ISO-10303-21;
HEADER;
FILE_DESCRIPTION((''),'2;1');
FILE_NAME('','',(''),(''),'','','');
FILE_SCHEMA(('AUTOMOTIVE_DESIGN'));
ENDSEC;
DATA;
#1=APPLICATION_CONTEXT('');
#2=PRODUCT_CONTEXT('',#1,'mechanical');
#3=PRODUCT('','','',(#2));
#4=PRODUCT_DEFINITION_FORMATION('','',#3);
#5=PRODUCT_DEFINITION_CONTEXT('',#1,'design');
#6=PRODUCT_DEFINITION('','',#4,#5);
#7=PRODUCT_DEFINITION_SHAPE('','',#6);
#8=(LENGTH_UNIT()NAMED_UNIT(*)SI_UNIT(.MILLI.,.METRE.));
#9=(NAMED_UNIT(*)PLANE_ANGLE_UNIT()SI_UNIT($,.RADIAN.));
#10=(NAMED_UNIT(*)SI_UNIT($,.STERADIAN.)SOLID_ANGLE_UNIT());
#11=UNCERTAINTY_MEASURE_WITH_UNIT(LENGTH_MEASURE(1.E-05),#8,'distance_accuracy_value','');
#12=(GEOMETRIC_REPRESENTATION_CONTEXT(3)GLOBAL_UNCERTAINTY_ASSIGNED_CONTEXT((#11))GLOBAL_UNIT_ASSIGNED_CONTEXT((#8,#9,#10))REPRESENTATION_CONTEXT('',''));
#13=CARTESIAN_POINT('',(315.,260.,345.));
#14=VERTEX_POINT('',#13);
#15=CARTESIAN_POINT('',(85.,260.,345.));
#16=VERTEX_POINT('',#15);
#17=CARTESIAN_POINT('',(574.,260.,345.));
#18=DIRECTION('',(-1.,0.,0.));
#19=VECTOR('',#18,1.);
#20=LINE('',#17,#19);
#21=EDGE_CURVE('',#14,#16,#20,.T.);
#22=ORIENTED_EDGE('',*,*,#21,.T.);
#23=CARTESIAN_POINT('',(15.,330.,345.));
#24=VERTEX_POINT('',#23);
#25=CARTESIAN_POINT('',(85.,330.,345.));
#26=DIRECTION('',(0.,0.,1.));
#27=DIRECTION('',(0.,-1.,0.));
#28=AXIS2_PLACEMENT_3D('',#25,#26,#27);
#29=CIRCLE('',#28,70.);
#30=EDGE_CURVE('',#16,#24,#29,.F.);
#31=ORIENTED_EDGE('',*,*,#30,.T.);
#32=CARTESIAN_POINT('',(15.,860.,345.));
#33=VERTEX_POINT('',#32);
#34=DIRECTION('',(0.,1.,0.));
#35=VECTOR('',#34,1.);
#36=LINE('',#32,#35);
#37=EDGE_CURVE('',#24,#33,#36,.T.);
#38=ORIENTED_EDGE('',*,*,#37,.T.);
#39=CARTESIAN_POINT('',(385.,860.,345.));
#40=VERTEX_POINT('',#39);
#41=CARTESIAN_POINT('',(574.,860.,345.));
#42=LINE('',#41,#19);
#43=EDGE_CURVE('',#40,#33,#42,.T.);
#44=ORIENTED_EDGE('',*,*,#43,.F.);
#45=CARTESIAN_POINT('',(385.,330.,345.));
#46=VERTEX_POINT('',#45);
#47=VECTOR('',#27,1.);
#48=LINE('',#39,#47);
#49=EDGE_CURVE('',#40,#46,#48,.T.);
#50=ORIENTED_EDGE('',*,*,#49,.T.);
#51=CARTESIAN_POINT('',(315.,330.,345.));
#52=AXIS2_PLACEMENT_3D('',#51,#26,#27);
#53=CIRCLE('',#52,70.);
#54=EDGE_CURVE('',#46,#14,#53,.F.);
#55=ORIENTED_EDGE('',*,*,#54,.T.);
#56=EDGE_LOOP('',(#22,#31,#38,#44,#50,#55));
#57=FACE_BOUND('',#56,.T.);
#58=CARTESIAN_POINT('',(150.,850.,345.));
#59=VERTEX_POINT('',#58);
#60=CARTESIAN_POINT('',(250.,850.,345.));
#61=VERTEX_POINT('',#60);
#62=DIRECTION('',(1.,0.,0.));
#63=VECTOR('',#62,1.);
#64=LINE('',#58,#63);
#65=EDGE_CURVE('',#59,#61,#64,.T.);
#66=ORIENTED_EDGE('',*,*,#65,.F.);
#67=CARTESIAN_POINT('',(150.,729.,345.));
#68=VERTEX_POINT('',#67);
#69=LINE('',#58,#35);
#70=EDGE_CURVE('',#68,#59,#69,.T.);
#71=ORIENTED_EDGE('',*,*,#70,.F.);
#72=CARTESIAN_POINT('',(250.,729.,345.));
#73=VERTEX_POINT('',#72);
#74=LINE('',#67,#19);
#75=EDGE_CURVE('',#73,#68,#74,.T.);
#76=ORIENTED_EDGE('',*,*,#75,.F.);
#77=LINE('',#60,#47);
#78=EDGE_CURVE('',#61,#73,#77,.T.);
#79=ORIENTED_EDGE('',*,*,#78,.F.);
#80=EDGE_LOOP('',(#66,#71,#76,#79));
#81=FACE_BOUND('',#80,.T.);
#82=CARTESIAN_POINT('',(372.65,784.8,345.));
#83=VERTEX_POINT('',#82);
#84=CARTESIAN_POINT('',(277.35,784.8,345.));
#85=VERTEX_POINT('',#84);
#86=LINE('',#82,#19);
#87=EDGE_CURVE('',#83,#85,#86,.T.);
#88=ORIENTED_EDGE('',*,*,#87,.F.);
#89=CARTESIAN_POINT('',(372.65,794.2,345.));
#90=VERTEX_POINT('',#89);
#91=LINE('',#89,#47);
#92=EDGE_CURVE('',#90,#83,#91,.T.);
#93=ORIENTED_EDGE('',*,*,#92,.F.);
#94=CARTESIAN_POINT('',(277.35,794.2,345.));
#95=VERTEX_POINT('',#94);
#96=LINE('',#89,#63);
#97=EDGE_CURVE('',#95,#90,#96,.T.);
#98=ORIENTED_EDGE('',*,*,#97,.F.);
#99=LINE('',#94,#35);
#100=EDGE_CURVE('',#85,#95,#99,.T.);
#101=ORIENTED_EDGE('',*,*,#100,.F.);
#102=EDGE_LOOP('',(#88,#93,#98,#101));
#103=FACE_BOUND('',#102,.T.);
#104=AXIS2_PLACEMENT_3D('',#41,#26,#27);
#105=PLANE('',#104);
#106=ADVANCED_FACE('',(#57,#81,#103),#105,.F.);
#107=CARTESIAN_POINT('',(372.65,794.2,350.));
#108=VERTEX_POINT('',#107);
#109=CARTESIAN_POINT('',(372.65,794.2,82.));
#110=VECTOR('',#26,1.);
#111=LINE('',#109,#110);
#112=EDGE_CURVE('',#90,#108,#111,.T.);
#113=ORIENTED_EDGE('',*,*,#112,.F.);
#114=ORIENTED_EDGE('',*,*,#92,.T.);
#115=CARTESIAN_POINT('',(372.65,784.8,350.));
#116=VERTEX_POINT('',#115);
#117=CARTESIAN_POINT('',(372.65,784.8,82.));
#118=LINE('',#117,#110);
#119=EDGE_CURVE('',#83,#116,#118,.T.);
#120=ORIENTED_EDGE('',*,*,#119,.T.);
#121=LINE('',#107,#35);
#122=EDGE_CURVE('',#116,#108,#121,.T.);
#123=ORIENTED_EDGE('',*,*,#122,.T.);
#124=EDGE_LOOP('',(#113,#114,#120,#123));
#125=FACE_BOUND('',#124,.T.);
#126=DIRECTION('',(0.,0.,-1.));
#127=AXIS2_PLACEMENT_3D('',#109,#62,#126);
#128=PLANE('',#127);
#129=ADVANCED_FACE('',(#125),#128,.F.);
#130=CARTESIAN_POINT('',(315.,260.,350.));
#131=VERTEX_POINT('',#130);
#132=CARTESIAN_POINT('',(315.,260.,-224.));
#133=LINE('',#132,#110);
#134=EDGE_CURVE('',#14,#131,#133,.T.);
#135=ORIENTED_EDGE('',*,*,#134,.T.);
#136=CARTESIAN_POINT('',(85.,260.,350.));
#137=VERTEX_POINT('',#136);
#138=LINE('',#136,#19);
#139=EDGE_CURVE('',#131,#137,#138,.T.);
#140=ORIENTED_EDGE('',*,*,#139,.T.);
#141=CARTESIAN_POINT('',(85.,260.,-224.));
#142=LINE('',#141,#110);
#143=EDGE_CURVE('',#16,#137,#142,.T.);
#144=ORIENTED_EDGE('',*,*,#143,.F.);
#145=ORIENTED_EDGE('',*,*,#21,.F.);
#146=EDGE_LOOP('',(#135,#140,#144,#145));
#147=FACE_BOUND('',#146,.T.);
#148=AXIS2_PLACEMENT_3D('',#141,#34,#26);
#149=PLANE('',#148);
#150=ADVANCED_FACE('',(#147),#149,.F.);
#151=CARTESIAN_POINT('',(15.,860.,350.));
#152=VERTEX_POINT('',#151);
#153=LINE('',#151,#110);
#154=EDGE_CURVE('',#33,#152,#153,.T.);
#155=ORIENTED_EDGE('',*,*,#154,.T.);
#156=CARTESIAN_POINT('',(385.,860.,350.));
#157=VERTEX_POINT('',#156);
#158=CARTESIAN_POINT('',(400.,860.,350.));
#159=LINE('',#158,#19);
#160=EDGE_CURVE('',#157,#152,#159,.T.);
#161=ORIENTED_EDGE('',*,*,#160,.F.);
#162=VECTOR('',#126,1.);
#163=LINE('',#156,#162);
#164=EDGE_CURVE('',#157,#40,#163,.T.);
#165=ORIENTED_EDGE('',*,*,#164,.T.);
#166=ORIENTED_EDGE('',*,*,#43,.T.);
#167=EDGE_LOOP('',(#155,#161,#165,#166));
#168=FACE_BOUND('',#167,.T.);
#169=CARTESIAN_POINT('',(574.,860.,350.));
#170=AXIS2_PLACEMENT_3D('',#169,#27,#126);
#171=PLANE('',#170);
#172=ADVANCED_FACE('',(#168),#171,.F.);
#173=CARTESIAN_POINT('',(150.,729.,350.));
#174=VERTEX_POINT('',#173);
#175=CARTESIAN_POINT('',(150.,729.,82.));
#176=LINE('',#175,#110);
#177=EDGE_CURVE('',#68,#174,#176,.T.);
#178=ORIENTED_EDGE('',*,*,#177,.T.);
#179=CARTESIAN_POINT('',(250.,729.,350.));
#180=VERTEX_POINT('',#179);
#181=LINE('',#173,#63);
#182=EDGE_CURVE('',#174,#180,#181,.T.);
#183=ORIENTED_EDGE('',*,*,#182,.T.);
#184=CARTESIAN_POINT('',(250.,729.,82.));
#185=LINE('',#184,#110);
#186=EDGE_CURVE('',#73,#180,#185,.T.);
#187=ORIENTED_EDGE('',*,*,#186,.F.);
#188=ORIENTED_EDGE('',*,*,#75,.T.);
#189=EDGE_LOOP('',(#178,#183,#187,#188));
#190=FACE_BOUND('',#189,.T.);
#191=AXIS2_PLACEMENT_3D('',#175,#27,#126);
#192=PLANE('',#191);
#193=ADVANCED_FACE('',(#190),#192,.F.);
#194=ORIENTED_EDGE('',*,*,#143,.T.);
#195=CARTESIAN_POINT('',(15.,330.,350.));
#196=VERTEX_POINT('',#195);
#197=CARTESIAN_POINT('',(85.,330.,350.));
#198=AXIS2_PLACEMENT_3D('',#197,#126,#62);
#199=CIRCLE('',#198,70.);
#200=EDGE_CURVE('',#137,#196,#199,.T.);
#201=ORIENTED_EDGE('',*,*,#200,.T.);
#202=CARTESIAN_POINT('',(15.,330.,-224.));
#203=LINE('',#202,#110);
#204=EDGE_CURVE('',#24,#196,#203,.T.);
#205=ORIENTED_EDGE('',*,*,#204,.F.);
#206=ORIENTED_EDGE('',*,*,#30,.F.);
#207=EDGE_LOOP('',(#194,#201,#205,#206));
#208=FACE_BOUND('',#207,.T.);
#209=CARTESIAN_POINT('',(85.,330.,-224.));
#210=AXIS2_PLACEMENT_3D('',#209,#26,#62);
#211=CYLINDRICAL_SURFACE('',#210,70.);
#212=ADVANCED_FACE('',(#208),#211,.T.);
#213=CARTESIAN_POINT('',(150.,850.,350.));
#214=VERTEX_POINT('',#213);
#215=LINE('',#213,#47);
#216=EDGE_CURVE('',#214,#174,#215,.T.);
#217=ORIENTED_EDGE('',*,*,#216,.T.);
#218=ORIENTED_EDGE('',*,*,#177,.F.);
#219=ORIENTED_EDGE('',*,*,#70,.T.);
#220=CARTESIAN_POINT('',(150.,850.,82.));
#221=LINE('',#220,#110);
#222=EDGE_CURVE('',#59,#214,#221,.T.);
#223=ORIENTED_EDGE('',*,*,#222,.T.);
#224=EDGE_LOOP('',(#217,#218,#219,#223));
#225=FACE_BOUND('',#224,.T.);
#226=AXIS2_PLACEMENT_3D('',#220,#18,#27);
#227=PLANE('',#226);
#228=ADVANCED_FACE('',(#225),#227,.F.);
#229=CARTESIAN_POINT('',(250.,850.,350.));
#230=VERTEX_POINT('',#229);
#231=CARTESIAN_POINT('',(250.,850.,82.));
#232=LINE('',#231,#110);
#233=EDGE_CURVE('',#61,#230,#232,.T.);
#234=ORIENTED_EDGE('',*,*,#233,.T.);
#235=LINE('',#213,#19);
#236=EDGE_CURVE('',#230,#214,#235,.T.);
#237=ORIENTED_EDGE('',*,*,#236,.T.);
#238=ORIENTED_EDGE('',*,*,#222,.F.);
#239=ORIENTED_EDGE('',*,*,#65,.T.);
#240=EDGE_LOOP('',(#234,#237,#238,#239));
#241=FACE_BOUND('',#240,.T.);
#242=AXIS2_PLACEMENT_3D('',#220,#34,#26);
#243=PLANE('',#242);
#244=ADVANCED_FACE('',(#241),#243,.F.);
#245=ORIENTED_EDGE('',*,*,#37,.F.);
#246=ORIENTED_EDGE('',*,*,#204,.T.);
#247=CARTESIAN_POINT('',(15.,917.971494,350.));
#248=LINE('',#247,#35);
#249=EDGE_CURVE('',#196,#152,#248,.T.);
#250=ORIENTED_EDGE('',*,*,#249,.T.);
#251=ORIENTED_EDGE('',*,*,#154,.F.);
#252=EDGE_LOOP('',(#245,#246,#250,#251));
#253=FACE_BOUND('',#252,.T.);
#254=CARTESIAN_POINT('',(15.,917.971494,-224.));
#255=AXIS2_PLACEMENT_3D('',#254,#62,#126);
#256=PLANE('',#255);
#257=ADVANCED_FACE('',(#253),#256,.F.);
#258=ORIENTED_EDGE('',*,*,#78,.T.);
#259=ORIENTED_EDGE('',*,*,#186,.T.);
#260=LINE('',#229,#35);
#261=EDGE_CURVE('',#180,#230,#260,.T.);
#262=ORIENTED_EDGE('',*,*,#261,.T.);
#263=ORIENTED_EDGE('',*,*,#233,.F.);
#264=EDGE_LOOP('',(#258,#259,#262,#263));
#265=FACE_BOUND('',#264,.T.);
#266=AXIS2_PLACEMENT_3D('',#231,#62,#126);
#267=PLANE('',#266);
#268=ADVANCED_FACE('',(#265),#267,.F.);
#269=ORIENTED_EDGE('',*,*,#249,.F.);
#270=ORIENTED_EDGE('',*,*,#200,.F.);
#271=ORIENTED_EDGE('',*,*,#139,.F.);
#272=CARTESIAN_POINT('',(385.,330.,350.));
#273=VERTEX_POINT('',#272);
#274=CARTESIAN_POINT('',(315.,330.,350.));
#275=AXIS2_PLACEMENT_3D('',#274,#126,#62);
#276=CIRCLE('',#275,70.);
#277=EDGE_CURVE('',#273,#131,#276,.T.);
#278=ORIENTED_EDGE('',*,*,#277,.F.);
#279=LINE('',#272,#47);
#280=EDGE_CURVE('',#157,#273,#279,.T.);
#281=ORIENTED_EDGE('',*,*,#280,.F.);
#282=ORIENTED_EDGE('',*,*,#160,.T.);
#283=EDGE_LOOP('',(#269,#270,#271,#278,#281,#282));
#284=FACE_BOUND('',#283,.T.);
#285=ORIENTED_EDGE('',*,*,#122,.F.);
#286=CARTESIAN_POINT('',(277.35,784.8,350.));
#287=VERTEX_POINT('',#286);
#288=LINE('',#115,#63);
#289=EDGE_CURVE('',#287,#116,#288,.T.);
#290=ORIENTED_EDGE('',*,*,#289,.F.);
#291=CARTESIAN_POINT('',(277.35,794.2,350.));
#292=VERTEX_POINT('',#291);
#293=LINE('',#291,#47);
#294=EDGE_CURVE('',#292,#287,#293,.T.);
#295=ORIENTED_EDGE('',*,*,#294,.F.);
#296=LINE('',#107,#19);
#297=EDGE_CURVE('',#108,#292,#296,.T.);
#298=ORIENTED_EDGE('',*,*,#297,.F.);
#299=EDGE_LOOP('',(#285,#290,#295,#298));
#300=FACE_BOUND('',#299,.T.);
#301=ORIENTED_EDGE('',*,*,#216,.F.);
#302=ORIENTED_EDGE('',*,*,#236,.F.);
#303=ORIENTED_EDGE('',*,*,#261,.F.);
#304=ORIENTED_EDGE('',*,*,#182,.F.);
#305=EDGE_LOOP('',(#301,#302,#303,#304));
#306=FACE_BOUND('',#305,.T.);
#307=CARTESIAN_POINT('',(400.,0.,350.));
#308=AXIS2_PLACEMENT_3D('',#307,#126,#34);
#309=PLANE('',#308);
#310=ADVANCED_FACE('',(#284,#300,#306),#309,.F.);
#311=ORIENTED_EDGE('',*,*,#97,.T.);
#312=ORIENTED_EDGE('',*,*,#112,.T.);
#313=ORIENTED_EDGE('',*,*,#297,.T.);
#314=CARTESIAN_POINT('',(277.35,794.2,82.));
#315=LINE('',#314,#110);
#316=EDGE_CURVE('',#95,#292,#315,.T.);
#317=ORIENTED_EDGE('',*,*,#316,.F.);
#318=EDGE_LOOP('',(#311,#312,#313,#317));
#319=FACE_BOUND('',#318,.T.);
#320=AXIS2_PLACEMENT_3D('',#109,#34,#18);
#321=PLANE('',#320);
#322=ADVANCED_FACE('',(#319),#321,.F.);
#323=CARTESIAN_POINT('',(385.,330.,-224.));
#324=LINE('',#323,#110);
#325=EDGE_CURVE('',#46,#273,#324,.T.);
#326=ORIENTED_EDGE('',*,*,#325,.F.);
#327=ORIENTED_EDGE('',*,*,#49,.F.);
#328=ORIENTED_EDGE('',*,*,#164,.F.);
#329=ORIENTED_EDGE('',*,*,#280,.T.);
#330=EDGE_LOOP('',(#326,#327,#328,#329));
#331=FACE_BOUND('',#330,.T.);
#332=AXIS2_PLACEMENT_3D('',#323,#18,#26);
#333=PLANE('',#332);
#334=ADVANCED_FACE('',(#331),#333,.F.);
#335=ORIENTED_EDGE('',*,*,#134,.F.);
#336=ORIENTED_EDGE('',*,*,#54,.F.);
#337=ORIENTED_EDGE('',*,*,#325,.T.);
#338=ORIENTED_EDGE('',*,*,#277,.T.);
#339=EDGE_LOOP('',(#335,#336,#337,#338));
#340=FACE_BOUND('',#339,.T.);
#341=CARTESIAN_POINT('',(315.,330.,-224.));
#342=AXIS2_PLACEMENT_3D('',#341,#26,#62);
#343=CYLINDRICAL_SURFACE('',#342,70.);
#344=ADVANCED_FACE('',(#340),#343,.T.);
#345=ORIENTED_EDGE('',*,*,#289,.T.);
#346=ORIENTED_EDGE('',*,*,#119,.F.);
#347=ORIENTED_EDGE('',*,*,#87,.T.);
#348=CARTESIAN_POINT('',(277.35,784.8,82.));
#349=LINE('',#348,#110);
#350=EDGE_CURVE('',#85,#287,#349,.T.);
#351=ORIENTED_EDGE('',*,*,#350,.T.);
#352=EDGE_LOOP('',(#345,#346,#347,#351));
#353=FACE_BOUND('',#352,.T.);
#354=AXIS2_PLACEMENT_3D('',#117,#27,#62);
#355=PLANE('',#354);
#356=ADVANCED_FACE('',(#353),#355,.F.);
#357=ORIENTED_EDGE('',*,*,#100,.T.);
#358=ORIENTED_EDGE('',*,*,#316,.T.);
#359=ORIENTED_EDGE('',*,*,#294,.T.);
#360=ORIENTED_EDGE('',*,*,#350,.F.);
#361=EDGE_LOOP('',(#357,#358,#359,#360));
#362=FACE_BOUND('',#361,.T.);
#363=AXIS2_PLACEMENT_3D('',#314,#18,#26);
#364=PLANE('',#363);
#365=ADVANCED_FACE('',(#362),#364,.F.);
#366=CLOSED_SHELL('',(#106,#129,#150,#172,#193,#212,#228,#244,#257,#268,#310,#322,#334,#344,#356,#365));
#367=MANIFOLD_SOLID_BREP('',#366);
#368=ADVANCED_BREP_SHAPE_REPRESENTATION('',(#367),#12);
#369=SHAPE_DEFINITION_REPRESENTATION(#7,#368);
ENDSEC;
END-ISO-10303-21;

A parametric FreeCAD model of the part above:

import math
import FreeCAD as App
import Part
import Sketcher
Q = App.Units.Quantity


def add_polygon(sketch, points):
    """Adds a closed chain of lines whose ends are joined by coincident constraints."""
    first, n = sketch.GeometryCount, len(points)
    for a, b in zip(points, points[1:] + points[:1]):
        sketch.addGeometry(Part.LineSegment(App.Vector(*a, 0), App.Vector(*b, 0)), False)
    for i in range(n):
        sketch.addConstraint(Sketcher.Constraint("Coincident", first + i, 2, first + (i + 1) % n, 1))

doc = App.newDocument("Part")
body = doc.addObject("PartDesign::Body", "Body")

# Sketch on YZ plane
sketch1 = doc.addObject("Sketcher::SketchObject", "Sketch")
body.addObject(sketch1)
sketch1.AttachmentSupport = (doc.YZ_Plane, [""])
sketch1.MapMode = "FlatFace"
sketch1.addGeometry([
    Part.LineSegment(App.Vector(0, 350, 0), App.Vector(0, 0, 0)),  # 0
    Part.LineSegment(App.Vector(0, 0, 0), App.Vector(900, 0, 0)),  # 1
    Part.ArcOfCircle(Part.Circle(App.Vector(900, 160.712283, 0), App.Vector(0, 0, 1), 160.712283), math.radians(-90), math.radians(-0.792691)),  # 2
    Part.LineSegment(App.Vector(1060.696902, 158.488889, 0), App.Vector(900, 158.488889, 0)),  # 3
    Part.LineSegment(App.Vector(900, 158.488889, 0), App.Vector(900, 310, 0)),  # 4
    Part.ArcOfCircle(Part.Circle(App.Vector(860, 310, 0), App.Vector(0, 0, 1), 40), math.radians(0), math.radians(90)),  # 5
    Part.LineSegment(App.Vector(860, 350, 0), App.Vector(0, 350, 0)),  # 6
], False)
sketch1.addConstraint([
    Sketcher.Constraint("Coincident", 0, 2, 1, 1),
    Sketcher.Constraint("Tangent", 1, 2, 2, 1),
    Sketcher.Constraint("Coincident", 2, 2, 3, 1),
    Sketcher.Constraint("Coincident", 3, 2, 4, 1),
    Sketcher.Constraint("Tangent", 4, 2, 5, 1),
    Sketcher.Constraint("Tangent", 5, 2, 6, 1),
    Sketcher.Constraint("Coincident", 6, 2, 0, 1),
    Sketcher.Constraint("Vertical", 0),
    Sketcher.Constraint("Horizontal", 1),
    Sketcher.Constraint("Horizontal", 3),
    Sketcher.Constraint("Vertical", 4),
    Sketcher.Constraint("Horizontal", 6),
    Sketcher.Constraint("Coincident", 0, 2, -1, 1),
    Sketcher.Constraint("Vertical", 1, 2, 3, 2),
    Sketcher.Constraint("Radius", 5, Q("40 mm")),
    Sketcher.Constraint("DistanceX", 1, 1, 1, 2, Q("900 mm")),
    Sketcher.Constraint("DistanceY", 0, 2, 0, 1, Q("350 mm")),
    Sketcher.Constraint("Radius", 2, Q("160.712283 mm")),
    Sketcher.Constraint("DistanceY", 4, 1, 4, 2, Q("151.511111 mm")),
])
pad1 = doc.addObject("PartDesign::Pad", "Pad")
body.addObject(pad1)
pad1.Profile = sketch1
pad1.Length = 400

# Sketch on XY plane
sketch2 = doc.addObject("Sketcher::SketchObject", "Sketch001")
body.addObject(sketch2)
sketch2.AttachmentSupport = (doc.XY_Plane, [""])
sketch2.MapMode = "FlatFace"
sketch2.AttachmentOffset = App.Placement(App.Vector(0, 0, 350), App.Rotation())
add_polygon(sketch2, [(150, 850), (150, 729), (250, 729), (250, 850)])  # lines 0-3
add_polygon(sketch2, [(277.35, 794.2), (277.35, 784.8), (372.65, 784.8), (372.65, 794.2)])  # lines 4-7
sketch2.addConstraint([
    Sketcher.Constraint("Vertical", 0),
    Sketcher.Constraint("Horizontal", 1),
    Sketcher.Constraint("Vertical", 2),
    Sketcher.Constraint("Horizontal", 3),
    Sketcher.Constraint("Vertical", 4),
    Sketcher.Constraint("Horizontal", 5),
    Sketcher.Constraint("Vertical", 6),
    Sketcher.Constraint("Horizontal", 7),
    Sketcher.Constraint("DistanceX", 1, 1, 1, 2, Q("100 mm")),
    Sketcher.Constraint("DistanceY", 0, 2, 0, 1, Q("121 mm")),
    Sketcher.Constraint("DistanceX", 5, 1, 5, 2, Q("95.3 mm")),
    Sketcher.Constraint("DistanceY", 4, 2, 4, 1, Q("9.4 mm")),
    Sketcher.Constraint("DistanceX", -1, 1, 0, 2, Q("150 mm")),
    Sketcher.Constraint("DistanceY", -1, 1, 0, 2, Q("729 mm")),
    Sketcher.Constraint("DistanceY", -1, 1, 4, 2, Q("784.8 mm")),
    Sketcher.Constraint("DistanceX", -1, 1, 4, 2, Q("277.35 mm")),
])
pocket1 = doc.addObject("PartDesign::Pocket", "Pocket")
body.addObject(pocket1)
pocket1.Profile = sketch2
pocket1.Length = 268

# Sketch on YZ plane
sketch3 = doc.addObject("Sketcher::SketchObject", "Sketch002")
body.addObject(sketch3)
sketch3.AttachmentSupport = (doc.YZ_Plane, [""])
sketch3.MapMode = "FlatFace"
add_polygon(sketch3, [(860, 345), (860, 350), (1431.247055, 878.315398), (1729.323155, -155.38291), (0, -654.048621), (-140.268206, 345)])  # lines 0-5
sketch3.addConstraint([
    Sketcher.Constraint("Vertical", 0),
    Sketcher.Constraint("Horizontal", 5),
    Sketcher.Constraint("PointOnObject", 3, 2, -2),
    Sketcher.Constraint("Perpendicular", 2, 3),
    Sketcher.Constraint("DistanceY", 0, 1, 0, 2, Q("5 mm")),
    Sketcher.Constraint("DistanceX", -1, 1, 0, 2, Q("860 mm")),
    Sketcher.Constraint("DistanceY", -1, 1, 0, 2, Q("350 mm")),
    Sketcher.Constraint("DistanceX", 1, 2, 2, 2, Q("298.0761 mm")),
    Sketcher.Constraint("Distance", 1, Q("778.10048 mm")),
    Sketcher.Constraint("Distance", 2, Q("1075.816691 mm")),
    Sketcher.Constraint("Distance", 4, Q("1008.847519 mm")),
    Sketcher.Constraint("DistanceX", 5, 1, 5, 2, Q("1000.268206 mm")),
])
pocket2 = doc.addObject("PartDesign::Pocket", "Pocket001")
body.addObject(pocket2)
pocket2.Profile = sketch3
pocket2.Length = 574
pocket2.Reversed = True

# Sketch on XY plane
sketch4 = doc.addObject("Sketcher::SketchObject", "Sketch003")
body.addObject(sketch4)
sketch4.AttachmentSupport = (doc.XY_Plane, [""])
sketch4.MapMode = "FlatFace"
sketch4.AttachmentOffset = App.Placement(App.Vector(0, 0, 350), App.Rotation())
sketch4.addGeometry([
    Part.LineSegment(App.Vector(15, 330, 0), App.Vector(15, 917.971494, 0)),  # 0
    Part.LineSegment(App.Vector(15, 917.971494, 0), App.Vector(-601.648804, 753.812427, 0)),  # 1
    Part.LineSegment(App.Vector(-601.648804, 753.812427, 0), App.Vector(110.907603, -163.88624, 0)),  # 2
    Part.LineSegment(App.Vector(110.907603, -163.88624, 0), App.Vector(899.548672, -163.88624, 0)),  # 3
    Part.LineSegment(App.Vector(899.548672, -163.88624, 0), App.Vector(580.540592, 679.226511, 0)),  # 4
    Part.LineSegment(App.Vector(580.540592, 679.226511, 0), App.Vector(385, 917.971494, 0)),  # 5
    Part.LineSegment(App.Vector(385, 917.971494, 0), App.Vector(385, 330, 0)),  # 6
    Part.ArcOfCircle(Part.Circle(App.Vector(315, 330, 0), App.Vector(0, 0, 1), 70), math.radians(-90), math.radians(0)),  # 7
    Part.LineSegment(App.Vector(315, 260, 0), App.Vector(85, 260, 0)),  # 8
    Part.ArcOfCircle(Part.Circle(App.Vector(85, 330, 0), App.Vector(0, 0, 1), 70), math.radians(180), math.radians(270)),  # 9
], False)
sketch4.addConstraint([
    Sketcher.Constraint("Coincident", 0, 2, 1, 1),
    Sketcher.Constraint("Coincident", 1, 2, 2, 1),
    Sketcher.Constraint("Coincident", 2, 2, 3, 1),
    Sketcher.Constraint("Coincident", 3, 2, 4, 1),
    Sketcher.Constraint("Coincident", 4, 2, 5, 1),
    Sketcher.Constraint("Coincident", 5, 2, 6, 1),
    Sketcher.Constraint("Tangent", 6, 2, 7, 2),
    Sketcher.Constraint("Tangent", 7, 1, 8, 1),
    Sketcher.Constraint("Tangent", 8, 2, 9, 2),
    Sketcher.Constraint("Tangent", 9, 1, 0, 1),
    Sketcher.Constraint("Vertical", 0),
    Sketcher.Constraint("Horizontal", 3),
    Sketcher.Constraint("Vertical", 6),
    Sketcher.Constraint("Horizontal", 8),
    Sketcher.Constraint("Equal", 7, 9),
    Sketcher.Constraint("Horizontal", 0, 2, 5, 2),
    Sketcher.Constraint("Radius", 7, Q("70 mm")),
    Sketcher.Constraint("DistanceX", 8, 2, 8, 1, Q("230 mm")),
    Sketcher.Constraint("DistanceX", -1, 1, 7, 3, Q("315 mm")),
    Sketcher.Constraint("DistanceY", -1, 1, 7, 3, Q("330 mm")),
    Sketcher.Constraint("DistanceX", 3, 1, 3, 2, Q("788.641069 mm")),
    Sketcher.Constraint("Distance", 4, Q("901.446208 mm")),
    Sketcher.Constraint("DistanceY", 0, 1, 0, 2, Q("587.971494 mm")),
    Sketcher.Constraint("DistanceY", 2, 2, -1, 1, Q("163.88624 mm")),
    Sketcher.Constraint("DistanceY", -1, 1, 4, 2, Q("679.226511 mm")),
    Sketcher.Constraint("Distance", 1, Q("638.125338 mm")),
    Sketcher.Constraint("Distance", 2, Q("1161.855187 mm")),
    Sketcher.Constraint("Distance", 5, Q("308.602155 mm")),
])
pocket3 = doc.addObject("PartDesign::Pocket", "Pocket002")
body.addObject(pocket3)
pocket3.Profile = sketch4
pocket3.Length = 574

doc.recompute()
